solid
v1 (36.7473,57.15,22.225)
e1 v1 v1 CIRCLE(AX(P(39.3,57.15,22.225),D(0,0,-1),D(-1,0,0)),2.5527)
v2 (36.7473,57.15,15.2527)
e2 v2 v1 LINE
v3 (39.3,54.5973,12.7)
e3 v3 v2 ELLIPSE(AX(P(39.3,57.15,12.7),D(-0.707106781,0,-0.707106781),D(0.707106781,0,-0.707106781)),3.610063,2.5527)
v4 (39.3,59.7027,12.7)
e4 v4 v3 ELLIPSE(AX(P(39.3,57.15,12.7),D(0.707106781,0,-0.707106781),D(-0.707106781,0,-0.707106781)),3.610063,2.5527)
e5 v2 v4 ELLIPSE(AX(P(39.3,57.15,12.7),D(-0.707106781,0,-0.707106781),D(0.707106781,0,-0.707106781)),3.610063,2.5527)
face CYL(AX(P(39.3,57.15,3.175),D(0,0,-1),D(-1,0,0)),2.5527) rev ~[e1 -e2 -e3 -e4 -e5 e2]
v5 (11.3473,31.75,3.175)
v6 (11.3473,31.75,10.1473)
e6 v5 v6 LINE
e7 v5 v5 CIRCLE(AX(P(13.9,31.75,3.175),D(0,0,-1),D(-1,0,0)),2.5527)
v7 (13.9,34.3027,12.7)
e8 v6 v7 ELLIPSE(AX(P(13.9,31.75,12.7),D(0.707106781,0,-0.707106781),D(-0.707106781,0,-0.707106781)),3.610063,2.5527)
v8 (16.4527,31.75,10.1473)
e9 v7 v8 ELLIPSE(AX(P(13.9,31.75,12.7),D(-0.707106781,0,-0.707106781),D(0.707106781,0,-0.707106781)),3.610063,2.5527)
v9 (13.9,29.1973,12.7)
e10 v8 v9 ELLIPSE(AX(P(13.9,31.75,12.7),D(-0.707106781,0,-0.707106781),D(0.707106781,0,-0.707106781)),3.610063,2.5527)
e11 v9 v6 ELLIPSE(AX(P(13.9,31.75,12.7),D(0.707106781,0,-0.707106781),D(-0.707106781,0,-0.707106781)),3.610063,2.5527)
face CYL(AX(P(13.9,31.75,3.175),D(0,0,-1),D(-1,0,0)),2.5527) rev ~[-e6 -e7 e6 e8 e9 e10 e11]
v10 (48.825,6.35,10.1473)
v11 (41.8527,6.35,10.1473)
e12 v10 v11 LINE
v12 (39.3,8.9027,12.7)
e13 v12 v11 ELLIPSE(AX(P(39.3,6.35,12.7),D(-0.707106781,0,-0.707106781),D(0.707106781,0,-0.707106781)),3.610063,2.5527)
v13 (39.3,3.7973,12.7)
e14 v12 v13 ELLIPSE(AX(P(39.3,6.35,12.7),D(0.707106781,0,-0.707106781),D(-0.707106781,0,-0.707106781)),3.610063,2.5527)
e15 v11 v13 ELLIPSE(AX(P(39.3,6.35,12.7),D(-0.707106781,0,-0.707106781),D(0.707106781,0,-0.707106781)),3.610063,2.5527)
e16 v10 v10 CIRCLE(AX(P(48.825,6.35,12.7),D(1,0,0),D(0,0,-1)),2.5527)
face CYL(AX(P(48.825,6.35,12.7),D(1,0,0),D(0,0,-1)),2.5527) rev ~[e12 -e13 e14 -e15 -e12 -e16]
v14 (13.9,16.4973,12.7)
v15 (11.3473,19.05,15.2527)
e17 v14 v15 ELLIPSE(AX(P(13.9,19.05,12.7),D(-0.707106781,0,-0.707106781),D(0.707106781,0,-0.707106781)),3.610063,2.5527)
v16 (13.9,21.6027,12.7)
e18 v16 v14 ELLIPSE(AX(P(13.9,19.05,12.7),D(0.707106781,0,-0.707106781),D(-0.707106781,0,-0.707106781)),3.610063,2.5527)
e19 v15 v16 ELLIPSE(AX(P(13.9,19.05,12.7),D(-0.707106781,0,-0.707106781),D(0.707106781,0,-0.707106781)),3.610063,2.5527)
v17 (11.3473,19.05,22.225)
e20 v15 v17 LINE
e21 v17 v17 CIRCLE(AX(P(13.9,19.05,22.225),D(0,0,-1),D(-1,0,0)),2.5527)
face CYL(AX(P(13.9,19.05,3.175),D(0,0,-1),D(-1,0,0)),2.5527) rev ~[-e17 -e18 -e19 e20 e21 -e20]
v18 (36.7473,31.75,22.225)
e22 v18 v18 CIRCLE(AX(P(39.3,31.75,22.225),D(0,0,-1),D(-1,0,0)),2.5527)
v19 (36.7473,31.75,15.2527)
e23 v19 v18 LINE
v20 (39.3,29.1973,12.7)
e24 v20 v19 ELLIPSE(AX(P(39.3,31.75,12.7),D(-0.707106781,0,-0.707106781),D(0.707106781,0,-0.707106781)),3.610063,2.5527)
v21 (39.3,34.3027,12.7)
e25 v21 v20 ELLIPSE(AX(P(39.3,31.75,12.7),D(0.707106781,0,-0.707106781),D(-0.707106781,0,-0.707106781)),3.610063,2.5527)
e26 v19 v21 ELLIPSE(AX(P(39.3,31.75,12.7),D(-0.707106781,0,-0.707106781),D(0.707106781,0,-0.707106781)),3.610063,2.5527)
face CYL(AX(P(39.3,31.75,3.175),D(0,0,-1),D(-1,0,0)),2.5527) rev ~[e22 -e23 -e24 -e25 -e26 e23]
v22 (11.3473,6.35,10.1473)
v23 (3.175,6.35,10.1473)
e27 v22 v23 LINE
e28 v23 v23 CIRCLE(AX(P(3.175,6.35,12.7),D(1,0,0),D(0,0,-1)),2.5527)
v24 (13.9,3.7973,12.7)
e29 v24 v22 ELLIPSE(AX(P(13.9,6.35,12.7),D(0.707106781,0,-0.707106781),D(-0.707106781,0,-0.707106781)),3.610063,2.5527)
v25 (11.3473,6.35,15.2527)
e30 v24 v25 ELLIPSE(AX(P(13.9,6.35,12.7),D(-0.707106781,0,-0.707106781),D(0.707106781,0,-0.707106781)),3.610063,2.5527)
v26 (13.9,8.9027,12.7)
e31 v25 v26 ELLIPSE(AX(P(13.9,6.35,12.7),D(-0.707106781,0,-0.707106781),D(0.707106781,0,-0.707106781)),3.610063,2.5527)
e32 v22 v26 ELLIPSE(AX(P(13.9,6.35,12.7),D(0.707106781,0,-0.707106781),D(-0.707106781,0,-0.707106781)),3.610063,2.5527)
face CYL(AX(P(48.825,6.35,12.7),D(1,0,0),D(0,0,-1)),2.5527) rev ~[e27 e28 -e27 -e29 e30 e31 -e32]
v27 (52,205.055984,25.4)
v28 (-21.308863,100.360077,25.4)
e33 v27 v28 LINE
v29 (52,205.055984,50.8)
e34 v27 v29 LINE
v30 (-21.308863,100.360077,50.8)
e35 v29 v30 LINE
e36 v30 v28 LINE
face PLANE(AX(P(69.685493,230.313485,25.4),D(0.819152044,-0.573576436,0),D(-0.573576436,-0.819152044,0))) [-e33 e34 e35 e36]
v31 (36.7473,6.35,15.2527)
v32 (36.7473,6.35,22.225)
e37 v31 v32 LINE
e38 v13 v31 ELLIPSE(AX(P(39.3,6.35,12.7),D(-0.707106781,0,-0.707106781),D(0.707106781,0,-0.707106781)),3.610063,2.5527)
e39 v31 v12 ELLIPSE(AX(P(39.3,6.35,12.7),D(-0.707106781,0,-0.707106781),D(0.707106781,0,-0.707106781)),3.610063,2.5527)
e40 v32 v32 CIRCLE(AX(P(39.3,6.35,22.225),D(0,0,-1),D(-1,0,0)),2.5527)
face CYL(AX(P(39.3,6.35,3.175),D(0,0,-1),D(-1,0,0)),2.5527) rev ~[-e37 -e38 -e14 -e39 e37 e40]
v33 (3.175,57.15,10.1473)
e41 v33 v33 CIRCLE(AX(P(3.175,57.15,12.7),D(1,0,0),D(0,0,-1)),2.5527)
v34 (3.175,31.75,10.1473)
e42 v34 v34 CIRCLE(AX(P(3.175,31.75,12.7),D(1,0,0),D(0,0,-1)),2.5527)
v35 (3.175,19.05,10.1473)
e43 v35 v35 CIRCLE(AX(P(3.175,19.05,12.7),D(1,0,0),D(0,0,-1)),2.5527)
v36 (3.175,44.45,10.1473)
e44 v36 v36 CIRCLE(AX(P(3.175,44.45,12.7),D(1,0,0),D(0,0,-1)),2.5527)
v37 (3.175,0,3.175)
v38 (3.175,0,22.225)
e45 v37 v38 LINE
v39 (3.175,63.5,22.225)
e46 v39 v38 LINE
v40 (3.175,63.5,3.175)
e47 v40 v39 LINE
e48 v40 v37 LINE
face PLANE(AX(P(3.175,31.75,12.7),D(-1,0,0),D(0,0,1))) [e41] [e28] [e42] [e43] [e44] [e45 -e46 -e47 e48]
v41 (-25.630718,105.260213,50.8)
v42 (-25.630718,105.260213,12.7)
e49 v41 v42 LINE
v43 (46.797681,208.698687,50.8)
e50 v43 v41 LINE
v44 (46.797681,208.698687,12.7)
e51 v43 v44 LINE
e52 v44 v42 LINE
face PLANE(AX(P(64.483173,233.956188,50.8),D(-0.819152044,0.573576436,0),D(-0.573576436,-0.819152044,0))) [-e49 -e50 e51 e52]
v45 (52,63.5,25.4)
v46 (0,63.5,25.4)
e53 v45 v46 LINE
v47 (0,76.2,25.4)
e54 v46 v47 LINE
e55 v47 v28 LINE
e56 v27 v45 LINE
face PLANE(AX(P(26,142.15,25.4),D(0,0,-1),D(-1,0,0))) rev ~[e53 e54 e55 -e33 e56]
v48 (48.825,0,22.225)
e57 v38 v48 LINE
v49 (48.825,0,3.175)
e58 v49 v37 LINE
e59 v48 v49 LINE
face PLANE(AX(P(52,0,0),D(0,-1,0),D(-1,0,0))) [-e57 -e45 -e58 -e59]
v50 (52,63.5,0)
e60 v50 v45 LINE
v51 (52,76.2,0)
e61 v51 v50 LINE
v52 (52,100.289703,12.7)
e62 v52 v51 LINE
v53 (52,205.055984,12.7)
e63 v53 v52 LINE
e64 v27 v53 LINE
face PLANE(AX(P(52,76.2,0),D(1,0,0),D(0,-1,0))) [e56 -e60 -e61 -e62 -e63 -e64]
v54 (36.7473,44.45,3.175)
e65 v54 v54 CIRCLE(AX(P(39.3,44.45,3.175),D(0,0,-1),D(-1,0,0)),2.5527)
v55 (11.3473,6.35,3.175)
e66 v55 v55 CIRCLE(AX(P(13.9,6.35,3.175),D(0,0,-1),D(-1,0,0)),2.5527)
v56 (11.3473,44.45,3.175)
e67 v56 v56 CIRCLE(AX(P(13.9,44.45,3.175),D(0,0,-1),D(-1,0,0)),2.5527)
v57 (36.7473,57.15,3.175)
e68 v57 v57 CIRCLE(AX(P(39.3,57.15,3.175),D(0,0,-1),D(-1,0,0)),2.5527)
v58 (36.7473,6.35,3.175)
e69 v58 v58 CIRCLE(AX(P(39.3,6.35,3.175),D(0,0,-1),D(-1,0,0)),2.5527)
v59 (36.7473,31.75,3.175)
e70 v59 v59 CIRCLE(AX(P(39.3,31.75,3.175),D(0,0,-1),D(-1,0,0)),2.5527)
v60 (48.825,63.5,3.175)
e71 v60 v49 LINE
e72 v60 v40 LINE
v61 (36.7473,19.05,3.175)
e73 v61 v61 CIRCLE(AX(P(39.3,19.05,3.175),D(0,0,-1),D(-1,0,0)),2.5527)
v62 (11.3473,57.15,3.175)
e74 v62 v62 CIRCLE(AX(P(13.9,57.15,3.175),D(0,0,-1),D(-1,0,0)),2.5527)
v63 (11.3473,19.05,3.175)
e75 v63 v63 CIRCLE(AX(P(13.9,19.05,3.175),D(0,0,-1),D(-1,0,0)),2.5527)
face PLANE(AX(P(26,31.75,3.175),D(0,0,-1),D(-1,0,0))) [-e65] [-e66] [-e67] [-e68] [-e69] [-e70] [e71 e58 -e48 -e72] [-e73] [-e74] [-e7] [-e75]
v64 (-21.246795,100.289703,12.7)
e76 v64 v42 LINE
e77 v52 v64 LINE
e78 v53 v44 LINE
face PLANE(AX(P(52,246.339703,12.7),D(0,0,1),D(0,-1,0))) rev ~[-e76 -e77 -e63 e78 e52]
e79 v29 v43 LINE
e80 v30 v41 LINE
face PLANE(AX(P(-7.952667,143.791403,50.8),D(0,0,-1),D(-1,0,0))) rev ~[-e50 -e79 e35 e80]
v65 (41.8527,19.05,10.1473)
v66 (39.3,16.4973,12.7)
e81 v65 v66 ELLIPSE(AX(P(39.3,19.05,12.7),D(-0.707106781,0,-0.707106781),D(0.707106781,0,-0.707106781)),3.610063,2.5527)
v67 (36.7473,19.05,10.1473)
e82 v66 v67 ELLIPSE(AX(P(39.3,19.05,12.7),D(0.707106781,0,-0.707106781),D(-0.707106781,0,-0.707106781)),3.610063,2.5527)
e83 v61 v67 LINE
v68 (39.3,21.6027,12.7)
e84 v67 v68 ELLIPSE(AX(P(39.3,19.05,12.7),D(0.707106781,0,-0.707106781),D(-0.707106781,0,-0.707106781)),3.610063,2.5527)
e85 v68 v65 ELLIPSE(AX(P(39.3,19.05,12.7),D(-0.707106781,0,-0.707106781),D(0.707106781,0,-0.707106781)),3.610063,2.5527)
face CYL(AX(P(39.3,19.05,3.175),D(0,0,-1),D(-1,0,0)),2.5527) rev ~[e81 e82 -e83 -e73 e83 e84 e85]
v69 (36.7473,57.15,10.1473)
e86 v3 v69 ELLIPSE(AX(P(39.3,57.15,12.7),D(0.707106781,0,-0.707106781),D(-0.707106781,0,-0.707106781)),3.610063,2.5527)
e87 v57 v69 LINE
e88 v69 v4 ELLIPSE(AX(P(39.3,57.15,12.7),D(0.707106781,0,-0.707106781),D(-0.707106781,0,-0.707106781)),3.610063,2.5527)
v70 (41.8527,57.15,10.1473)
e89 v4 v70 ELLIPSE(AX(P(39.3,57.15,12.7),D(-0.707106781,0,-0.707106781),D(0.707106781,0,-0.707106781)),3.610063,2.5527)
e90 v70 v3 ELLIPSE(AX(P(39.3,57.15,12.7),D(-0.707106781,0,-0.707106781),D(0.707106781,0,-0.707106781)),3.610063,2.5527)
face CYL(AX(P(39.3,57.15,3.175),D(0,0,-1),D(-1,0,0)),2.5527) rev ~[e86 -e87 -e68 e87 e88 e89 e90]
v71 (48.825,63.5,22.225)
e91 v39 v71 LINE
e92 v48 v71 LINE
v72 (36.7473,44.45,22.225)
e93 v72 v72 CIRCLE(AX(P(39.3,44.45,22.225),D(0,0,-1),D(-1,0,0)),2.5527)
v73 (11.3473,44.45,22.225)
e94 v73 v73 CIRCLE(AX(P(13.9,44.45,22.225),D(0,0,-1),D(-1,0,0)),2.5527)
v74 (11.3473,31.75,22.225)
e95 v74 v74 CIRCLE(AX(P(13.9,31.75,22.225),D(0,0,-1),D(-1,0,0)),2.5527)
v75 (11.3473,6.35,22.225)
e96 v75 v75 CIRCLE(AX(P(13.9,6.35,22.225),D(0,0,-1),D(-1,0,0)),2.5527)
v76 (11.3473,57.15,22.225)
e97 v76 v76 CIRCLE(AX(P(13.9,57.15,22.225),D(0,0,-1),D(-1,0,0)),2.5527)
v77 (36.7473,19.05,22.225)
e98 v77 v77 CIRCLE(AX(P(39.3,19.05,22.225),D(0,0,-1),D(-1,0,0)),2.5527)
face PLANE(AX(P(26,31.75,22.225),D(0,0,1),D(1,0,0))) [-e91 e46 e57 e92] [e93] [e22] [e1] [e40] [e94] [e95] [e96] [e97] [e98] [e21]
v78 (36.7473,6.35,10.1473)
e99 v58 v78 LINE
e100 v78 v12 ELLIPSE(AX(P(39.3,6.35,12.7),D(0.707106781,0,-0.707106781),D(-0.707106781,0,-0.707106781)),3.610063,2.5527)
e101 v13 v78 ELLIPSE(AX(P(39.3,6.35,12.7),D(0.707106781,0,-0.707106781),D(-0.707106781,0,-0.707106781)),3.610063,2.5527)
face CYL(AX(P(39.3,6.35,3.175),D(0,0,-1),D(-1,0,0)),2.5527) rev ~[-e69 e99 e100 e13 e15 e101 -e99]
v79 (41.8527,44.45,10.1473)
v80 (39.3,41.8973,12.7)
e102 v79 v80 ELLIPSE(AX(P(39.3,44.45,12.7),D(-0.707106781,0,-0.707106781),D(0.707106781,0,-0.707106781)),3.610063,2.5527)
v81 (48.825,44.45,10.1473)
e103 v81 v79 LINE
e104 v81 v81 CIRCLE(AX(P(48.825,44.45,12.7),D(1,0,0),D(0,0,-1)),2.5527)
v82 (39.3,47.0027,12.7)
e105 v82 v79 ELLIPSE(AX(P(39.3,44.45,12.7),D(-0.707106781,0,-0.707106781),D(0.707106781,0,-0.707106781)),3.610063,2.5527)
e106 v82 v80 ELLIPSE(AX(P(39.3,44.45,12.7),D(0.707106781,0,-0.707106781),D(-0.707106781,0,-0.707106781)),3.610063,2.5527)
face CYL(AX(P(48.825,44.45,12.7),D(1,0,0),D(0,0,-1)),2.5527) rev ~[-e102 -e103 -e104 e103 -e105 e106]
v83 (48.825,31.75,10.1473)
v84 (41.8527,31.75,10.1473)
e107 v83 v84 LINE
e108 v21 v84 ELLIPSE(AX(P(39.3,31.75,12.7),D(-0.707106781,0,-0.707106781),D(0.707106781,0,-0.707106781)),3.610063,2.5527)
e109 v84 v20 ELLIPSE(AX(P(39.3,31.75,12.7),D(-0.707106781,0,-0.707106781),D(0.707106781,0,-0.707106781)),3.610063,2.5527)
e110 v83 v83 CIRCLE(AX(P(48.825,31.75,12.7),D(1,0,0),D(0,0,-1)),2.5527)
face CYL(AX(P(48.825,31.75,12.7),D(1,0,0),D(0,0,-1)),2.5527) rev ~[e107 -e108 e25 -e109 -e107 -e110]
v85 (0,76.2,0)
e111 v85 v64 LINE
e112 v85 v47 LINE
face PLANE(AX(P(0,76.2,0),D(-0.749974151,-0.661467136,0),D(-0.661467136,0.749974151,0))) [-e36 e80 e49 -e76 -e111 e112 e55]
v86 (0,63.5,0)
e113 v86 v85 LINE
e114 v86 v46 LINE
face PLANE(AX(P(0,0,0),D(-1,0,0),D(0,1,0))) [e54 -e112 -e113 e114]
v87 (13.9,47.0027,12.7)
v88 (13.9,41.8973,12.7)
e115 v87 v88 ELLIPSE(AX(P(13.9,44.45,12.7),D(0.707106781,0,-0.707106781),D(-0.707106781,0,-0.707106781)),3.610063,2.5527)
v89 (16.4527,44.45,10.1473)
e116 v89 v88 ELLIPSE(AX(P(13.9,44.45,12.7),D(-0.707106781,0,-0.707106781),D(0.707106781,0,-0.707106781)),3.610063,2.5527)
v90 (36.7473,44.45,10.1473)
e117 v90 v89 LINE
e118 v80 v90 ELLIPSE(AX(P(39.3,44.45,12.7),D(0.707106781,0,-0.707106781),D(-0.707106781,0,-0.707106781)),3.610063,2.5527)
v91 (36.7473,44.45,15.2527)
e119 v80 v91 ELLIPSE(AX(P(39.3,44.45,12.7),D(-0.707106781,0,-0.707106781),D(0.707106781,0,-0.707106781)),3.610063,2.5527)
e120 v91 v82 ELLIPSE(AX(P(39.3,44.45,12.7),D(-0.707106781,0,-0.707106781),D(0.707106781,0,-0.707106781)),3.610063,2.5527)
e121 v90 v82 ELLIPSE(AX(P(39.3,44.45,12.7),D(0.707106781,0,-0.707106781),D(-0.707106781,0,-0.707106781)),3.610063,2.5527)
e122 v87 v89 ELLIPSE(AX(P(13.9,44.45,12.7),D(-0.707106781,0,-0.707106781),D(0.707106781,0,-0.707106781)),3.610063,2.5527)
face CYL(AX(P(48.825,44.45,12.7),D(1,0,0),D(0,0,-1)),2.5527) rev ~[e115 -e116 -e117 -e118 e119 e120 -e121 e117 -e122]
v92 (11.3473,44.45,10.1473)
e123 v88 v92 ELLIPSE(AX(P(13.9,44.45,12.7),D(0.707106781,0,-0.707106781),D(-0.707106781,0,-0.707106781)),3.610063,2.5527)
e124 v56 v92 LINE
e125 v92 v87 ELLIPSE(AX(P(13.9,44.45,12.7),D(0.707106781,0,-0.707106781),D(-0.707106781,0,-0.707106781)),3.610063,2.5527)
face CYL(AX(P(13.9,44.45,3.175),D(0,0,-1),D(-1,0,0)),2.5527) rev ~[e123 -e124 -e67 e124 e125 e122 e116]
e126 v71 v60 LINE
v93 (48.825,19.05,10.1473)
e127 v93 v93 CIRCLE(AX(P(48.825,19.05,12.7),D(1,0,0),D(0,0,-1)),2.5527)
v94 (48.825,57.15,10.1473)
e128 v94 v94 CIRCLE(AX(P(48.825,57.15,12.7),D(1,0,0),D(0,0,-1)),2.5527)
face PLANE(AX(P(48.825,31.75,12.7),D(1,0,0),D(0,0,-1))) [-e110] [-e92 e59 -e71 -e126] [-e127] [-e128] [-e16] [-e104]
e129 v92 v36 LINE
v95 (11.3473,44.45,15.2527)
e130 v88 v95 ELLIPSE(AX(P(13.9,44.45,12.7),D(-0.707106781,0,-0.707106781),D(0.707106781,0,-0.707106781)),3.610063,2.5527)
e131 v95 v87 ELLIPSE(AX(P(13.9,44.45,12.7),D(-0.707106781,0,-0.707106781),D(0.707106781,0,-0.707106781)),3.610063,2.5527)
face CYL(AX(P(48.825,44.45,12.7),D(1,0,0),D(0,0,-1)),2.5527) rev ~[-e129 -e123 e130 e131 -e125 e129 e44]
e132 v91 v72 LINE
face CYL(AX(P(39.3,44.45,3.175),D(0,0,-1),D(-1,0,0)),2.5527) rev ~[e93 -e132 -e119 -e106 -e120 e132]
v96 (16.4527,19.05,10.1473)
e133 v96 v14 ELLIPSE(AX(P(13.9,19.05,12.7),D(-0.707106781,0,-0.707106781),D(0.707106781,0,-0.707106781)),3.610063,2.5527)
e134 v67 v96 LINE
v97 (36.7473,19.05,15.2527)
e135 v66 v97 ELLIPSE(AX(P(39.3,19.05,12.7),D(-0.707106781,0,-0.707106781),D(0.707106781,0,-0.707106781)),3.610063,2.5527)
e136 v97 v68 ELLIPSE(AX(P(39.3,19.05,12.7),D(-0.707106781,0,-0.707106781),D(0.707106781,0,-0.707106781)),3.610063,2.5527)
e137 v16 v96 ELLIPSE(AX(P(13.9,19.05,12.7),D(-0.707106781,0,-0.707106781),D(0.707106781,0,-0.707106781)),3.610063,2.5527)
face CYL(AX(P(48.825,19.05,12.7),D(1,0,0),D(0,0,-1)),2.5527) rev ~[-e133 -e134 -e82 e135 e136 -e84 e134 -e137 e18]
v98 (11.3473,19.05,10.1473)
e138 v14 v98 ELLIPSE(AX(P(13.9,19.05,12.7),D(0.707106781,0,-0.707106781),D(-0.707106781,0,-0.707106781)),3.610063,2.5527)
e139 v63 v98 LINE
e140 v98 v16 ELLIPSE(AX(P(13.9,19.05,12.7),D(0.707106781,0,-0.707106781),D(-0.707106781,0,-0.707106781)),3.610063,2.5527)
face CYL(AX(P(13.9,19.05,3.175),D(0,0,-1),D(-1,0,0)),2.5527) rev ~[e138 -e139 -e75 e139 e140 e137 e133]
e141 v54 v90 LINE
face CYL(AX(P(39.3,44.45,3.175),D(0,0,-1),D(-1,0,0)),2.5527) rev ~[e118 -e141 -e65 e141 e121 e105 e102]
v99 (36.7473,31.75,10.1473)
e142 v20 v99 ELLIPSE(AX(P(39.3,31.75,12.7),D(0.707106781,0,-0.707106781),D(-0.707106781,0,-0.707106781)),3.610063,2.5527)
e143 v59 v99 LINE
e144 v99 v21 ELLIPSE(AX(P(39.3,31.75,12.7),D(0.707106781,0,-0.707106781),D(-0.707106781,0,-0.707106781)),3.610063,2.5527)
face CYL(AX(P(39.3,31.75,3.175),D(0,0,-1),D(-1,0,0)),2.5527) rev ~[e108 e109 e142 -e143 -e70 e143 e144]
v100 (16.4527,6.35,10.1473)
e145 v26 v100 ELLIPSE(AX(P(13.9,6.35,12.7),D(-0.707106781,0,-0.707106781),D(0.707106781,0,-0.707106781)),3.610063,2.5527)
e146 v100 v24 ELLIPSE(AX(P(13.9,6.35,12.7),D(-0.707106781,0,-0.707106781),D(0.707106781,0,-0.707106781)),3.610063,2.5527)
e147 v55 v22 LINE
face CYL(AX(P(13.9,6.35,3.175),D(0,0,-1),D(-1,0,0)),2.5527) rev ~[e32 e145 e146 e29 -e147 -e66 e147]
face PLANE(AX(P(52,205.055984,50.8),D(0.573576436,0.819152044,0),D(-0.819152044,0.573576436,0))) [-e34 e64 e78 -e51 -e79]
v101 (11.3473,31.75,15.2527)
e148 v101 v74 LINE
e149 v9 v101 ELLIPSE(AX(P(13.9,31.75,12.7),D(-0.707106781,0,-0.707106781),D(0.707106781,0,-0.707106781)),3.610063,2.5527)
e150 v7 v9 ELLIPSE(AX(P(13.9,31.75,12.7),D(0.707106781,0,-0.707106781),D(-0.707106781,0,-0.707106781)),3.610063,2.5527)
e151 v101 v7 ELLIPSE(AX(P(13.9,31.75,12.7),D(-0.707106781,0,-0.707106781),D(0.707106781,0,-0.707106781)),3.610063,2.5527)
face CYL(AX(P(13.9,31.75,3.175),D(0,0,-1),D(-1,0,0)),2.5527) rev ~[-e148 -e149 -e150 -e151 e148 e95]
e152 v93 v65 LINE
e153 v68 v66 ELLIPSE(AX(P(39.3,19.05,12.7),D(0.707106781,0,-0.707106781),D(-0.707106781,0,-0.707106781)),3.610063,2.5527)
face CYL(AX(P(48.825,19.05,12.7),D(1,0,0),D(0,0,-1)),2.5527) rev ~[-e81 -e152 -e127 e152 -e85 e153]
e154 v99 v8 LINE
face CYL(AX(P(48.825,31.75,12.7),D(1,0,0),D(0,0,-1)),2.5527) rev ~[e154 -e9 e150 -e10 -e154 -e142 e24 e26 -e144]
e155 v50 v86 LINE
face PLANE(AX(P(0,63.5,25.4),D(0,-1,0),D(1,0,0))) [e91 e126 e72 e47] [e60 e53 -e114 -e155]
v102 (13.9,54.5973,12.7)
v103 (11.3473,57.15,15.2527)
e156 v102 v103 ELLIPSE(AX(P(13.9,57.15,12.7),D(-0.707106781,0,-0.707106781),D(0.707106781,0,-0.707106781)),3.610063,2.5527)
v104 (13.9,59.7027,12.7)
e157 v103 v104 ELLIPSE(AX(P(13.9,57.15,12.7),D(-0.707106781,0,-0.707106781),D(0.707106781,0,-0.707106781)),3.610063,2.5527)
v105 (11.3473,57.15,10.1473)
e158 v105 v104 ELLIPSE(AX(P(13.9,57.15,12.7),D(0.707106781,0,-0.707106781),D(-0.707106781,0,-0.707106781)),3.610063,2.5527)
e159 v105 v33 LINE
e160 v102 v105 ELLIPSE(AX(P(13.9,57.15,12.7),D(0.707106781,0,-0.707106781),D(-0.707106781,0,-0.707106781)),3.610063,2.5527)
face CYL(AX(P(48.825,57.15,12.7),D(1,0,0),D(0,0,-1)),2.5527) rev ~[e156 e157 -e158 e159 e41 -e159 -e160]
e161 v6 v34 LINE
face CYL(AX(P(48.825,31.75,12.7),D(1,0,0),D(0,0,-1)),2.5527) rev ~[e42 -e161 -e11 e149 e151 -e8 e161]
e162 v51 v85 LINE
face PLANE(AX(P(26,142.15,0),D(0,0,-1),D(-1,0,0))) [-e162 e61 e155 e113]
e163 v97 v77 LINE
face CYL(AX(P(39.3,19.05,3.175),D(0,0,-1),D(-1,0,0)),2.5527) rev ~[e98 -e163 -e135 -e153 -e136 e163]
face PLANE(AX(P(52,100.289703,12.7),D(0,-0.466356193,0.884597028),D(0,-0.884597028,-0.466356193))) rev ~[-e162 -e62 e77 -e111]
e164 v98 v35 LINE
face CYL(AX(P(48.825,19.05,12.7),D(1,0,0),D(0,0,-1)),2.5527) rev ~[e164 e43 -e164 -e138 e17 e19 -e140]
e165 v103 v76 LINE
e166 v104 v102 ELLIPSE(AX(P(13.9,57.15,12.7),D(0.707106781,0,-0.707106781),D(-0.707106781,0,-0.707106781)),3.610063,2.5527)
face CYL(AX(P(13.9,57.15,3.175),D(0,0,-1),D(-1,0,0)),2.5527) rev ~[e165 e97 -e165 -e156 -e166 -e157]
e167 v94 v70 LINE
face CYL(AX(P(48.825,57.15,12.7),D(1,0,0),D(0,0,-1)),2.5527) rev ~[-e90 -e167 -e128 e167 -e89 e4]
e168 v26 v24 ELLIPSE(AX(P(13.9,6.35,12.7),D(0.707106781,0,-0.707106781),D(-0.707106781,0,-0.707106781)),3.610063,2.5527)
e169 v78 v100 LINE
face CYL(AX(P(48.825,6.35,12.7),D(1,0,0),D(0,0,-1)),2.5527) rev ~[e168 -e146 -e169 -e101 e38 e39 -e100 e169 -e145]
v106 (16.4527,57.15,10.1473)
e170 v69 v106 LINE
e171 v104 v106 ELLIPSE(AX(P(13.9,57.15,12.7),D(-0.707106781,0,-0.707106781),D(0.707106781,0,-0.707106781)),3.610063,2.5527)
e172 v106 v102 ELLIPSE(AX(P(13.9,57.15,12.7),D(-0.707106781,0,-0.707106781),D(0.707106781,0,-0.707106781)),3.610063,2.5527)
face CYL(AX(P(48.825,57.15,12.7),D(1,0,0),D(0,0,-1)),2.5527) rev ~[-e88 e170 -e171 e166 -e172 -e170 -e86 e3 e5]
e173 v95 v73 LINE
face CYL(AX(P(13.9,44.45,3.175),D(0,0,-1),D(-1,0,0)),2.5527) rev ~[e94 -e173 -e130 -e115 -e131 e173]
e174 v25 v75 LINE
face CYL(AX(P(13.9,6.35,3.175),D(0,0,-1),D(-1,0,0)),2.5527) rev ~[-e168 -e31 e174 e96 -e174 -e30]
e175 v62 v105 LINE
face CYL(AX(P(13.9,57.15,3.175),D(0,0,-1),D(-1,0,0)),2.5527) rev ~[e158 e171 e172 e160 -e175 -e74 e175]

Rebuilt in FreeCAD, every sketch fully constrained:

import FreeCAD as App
import Part
import Sketcher
from FreeCAD import Vector
Q = App.Units.Quantity


def add_polygon(sketch, points):
    """Adds a closed chain of lines whose ends are joined by coincident constraints."""
    first, n = sketch.GeometryCount, len(points)
    for a, b in zip(points, points[1:] + points[:1]):
        sketch.addGeometry(Part.LineSegment(App.Vector(*a, 0), App.Vector(*b, 0)), False)
    for i in range(n):
        sketch.addConstraint(Sketcher.Constraint("Coincident", first + i, 2, first + (i + 1) % n, 1))

doc = App.newDocument("Part")
body = doc.addObject("PartDesign::Body", "Body")

sketch1 = body.newObject("Sketcher::SketchObject", "Sketch")
sketch1.AttachmentSupport = (doc.getObject("XY_Plane"), [""])
sketch1.MapMode = "FlatFace"
add_polygon(sketch1, [(0, 76), (0, 0), (52, 0), (52, 76), (153, 76), (153, 254), (-101, 254), (-101, 76)])
sketch1.addConstraint(Sketcher.Constraint("Vertical", 0))
sketch1.addConstraint(Sketcher.Constraint("Horizontal", 1))
sketch1.addConstraint(Sketcher.Constraint("Vertical", 2))
sketch1.addConstraint(Sketcher.Constraint("Horizontal", 3))
sketch1.addConstraint(Sketcher.Constraint("Vertical", 4))
sketch1.addConstraint(Sketcher.Constraint("Horizontal", 5))
sketch1.addConstraint(Sketcher.Constraint("Vertical", 6))
sketch1.addConstraint(Sketcher.Constraint("Horizontal", 7))
sketch1.addConstraint(Sketcher.Constraint("Coincident", 0, 2, -1, 1))
sketch1.addConstraint(Sketcher.Constraint("Horizontal", 3, 2, 6, 2))
sketch1.addConstraint(Sketcher.Constraint("Equal", 3, 7))
sketch1.addConstraint(Sketcher.Constraint("DistanceX", 5, 2, 5, 1, Q("10 in")))
sketch1.addConstraint(Sketcher.Constraint("DistanceY", 0, 2, 0, 1, Q("3 in")))
sketch1.addConstraint(Sketcher.Constraint("DistanceY", 4, 1, 4, 2, Q("7 in")))
sketch1.addConstraint(Sketcher.Constraint("DistanceX", 1, 1, 1, 2, 52.0))
pad1 = body.newObject("PartDesign::Pad", "Pad")
pad1.Profile = sketch1
pad1.Length = Q("1 in")

sketch2 = body.newObject("Sketcher::SketchObject", "Sketch001")
sketch2.AttachmentSupport = (doc.getObject("XY_Plane"), [""])
sketch2.MapMode = "FlatFace"
sketch2.AttachmentOffset = App.Placement(Vector(0, 0, 1 * 25.4), App.Rotation())
add_polygon(sketch2, [(0, 64), (0, 0), (52, 0), (52, 64)])
sketch2.addConstraint(Sketcher.Constraint("Vertical", 0))
sketch2.addConstraint(Sketcher.Constraint("Horizontal", 1))
sketch2.addConstraint(Sketcher.Constraint("Vertical", 2))
sketch2.addConstraint(Sketcher.Constraint("Horizontal", 3))
sketch2.addConstraint(Sketcher.Constraint("Coincident", 0, 2, -1, 1))
sketch2.addConstraint(Sketcher.Constraint("DistanceY", 0, 2, 0, 1, Q("2.5 in")))
sketch2.addConstraint(Sketcher.Constraint("DistanceX", 1, 1, 1, 2, 52.0))
pocket1 = body.newObject("PartDesign::Pocket", "Pocket")
pocket1.Profile = sketch2
pocket1.Length = Q("0.125 in")

sketch3 = body.newObject("Sketcher::SketchObject", "Sketch002")
sketch3.AttachmentSupport = (doc.getObject("YZ_Plane"), [""])
sketch3.MapMode = "FlatFace"
add_polygon(sketch3, [(64, 0), (0, 0), (0, 25), (64, 25)])
sketch3.addConstraint(Sketcher.Constraint("Horizontal", 0))
sketch3.addConstraint(Sketcher.Constraint("Vertical", 1))
sketch3.addConstraint(Sketcher.Constraint("Horizontal", 2))
sketch3.addConstraint(Sketcher.Constraint("Vertical", 3))
sketch3.addConstraint(Sketcher.Constraint("Coincident", 0, 2, -1, 1))
sketch3.addConstraint(Sketcher.Constraint("DistanceY", 1, 1, 1, 2, Q("1 in")))
sketch3.addConstraint(Sketcher.Constraint("DistanceX", 0, 2, 0, 1, Q("2.5 in")))
pocket2 = body.newObject("PartDesign::Pocket", "Pocket001")
pocket2.Profile = sketch3
pocket2.Length = Q("0.125 in")
pocket2.Reversed = True

sketch4 = body.newObject("Sketcher::SketchObject", "Sketch003")
sketch4.AttachmentSupport = (doc.getObject("XY_Plane"), [""])
sketch4.MapMode = "FlatFace"
add_polygon(sketch4, [(52, 64), (52, 0), (0, 0), (0, 64)])
sketch4.addConstraint(Sketcher.Constraint("Vertical", 0))
sketch4.addConstraint(Sketcher.Constraint("Horizontal", 1))
sketch4.addConstraint(Sketcher.Constraint("Vertical", 2))
sketch4.addConstraint(Sketcher.Constraint("Horizontal", 3))
sketch4.addConstraint(Sketcher.Constraint("Coincident", 1, 2, -1, 1))
sketch4.addConstraint(Sketcher.Constraint("DistanceY", 0, 2, 0, 1, Q("2.5 in")))
sketch4.addConstraint(Sketcher.Constraint("DistanceX", 1, 2, 1, 1, 52.0))
pocket3 = body.newObject("PartDesign::Pocket", "Pocket002")
pocket3.Profile = sketch4
pocket3.Length = Q("0.125 in")
pocket3.Reversed = True

sketch5 = body.newObject("Sketcher::SketchObject", "Sketch004")
sketch5.AttachmentSupport = (doc.getObject("YZ_Plane"), [""])
sketch5.MapMode = "FlatFace"
sketch5.AttachmentOffset = App.Placement(Vector(0, 0, 52), App.Rotation())
add_polygon(sketch5, [(64, 25), (0, 25), (0, 0), (64, 0)])
sketch5.addConstraint(Sketcher.Constraint("Horizontal", 0))
sketch5.addConstraint(Sketcher.Constraint("Vertical", 1))
sketch5.addConstraint(Sketcher.Constraint("Horizontal", 2))
sketch5.addConstraint(Sketcher.Constraint("Vertical", 3))
sketch5.addConstraint(Sketcher.Constraint("Coincident", 1, 2, -1, 1))
sketch5.addConstraint(Sketcher.Constraint("DistanceY", 1, 2, 1, 1, Q("1 in")))
sketch5.addConstraint(Sketcher.Constraint("DistanceX", 0, 2, 0, 1, Q("2.5 in")))
pocket4 = body.newObject("PartDesign::Pocket", "Pocket003")
pocket4.Profile = sketch5
pocket4.Length = Q("0.125 in")

sketch6 = body.newObject("Sketcher::SketchObject", "Sketch005")
sketch6.AttachmentSupport = (doc.getObject("XY_Plane"), [""])
sketch6.MapMode = "FlatFace"
sketch6.AttachmentOffset = App.Placement(Vector(0, 0, 0.125 * 25.4), App.Rotation())
sketch6.addGeometry(Part.Circle(Vector(39.3, 57.1, 0), Vector(0, 0, 1), 2.6), False)
sketch6.addGeometry(Part.Circle(Vector(13.9, 57.1, 0), Vector(0, 0, 1), 2.6), False)
sketch6.addGeometry(Part.Circle(Vector(39.3, 44.5, 0), Vector(0, 0, 1), 2.6), False)
sketch6.addGeometry(Part.Circle(Vector(13.9, 44.5, 0), Vector(0, 0, 1), 2.6), False)
sketch6.addGeometry(Part.Circle(Vector(39.3, 31.8, 0), Vector(0, 0, 1), 2.6), False)
sketch6.addGeometry(Part.Circle(Vector(13.9, 31.8, 0), Vector(0, 0, 1), 2.6), False)
sketch6.addGeometry(Part.Circle(Vector(39.3, 19.1, 0), Vector(0, 0, 1), 2.6), False)
sketch6.addGeometry(Part.Circle(Vector(13.9, 19.1, 0), Vector(0, 0, 1), 2.6), False)
sketch6.addGeometry(Part.Circle(Vector(39.3, 6.3, 0), Vector(0, 0, 1), 2.6), False)
sketch6.addGeometry(Part.Circle(Vector(13.9, 6.3, 0), Vector(0, 0, 1), 2.6), False)
sketch6.addConstraint(Sketcher.Constraint("Equal", 0, 1))
sketch6.addConstraint(Sketcher.Constraint("Equal", 1, 2))
sketch6.addConstraint(Sketcher.Constraint("Equal", 2, 3))
sketch6.addConstraint(Sketcher.Constraint("Equal", 3, 4))
sketch6.addConstraint(Sketcher.Constraint("Equal", 4, 5))
sketch6.addConstraint(Sketcher.Constraint("Equal", 5, 6))
sketch6.addConstraint(Sketcher.Constraint("Equal", 6, 7))
sketch6.addConstraint(Sketcher.Constraint("Equal", 7, 8))
sketch6.addConstraint(Sketcher.Constraint("Equal", 8, 9))
sketch6.addConstraint(Sketcher.Constraint("Horizontal", 0, 3, 1, 3))
sketch6.addConstraint(Sketcher.Constraint("Horizontal", 2, 3, 3, 3))
sketch6.addConstraint(Sketcher.Constraint("Horizontal", 4, 3, 5, 3))
sketch6.addConstraint(Sketcher.Constraint("Horizontal", 6, 3, 7, 3))
sketch6.addConstraint(Sketcher.Constraint("Horizontal", 8, 3, 9, 3))
sketch6.addConstraint(Sketcher.Constraint("Vertical", 0, 3, 2, 3))
sketch6.addConstraint(Sketcher.Constraint("Vertical", 1, 3, 3, 3))
sketch6.addConstraint(Sketcher.Constraint("Vertical", 2, 3, 4, 3))
sketch6.addConstraint(Sketcher.Constraint("Vertical", 3, 3, 5, 3))
sketch6.addConstraint(Sketcher.Constraint("Vertical", 4, 3, 6, 3))
sketch6.addConstraint(Sketcher.Constraint("Vertical", 5, 3, 7, 3))
sketch6.addConstraint(Sketcher.Constraint("Vertical", 6, 3, 8, 3))
sketch6.addConstraint(Sketcher.Constraint("Vertical", 7, 3, 9, 3))
sketch6.addConstraint(Sketcher.Constraint("Diameter", 0, Q("0.201 in")))
sketch6.addConstraint(Sketcher.Constraint("DistanceX", 1, 3, 0, 3, Q("1 in")))
sketch6.addConstraint(Sketcher.Constraint("DistanceY", 4, 3, 0, 3, Q("1 in")))
sketch6.addConstraint(Sketcher.Constraint("DistanceY", 6, 3, 2, 3, Q("1 in")))
sketch6.addConstraint(Sketcher.Constraint("DistanceY", 8, 3, 4, 3, Q("1 in")))
sketch6.addConstraint(Sketcher.Constraint("DistanceY", 2, 3, 0, 3, Q("0.5 in")))
sketch6.addConstraint(Sketcher.Constraint("DistanceY", -1, 1, 0, 3, Q("2.25 in")))
sketch6.addConstraint(Sketcher.Constraint("DistanceX", -1, 1, 0, 3, 39.3))
pocket5 = body.newObject("PartDesign::Pocket", "Pocket004")
pocket5.Profile = sketch6
pocket5.Type = "ThroughAll"
pocket5.Reversed = True

sketch7 = body.newObject("Sketcher::SketchObject", "Sketch006")
sketch7.AttachmentSupport = (doc.getObject("YZ_Plane"), [""])
sketch7.MapMode = "FlatFace"
sketch7.AttachmentOffset = App.Placement(Vector(0, 0, 48.825), App.Rotation())
sketch7.addGeometry(Part.Circle(Vector(57.1, 12.7, 0), Vector(0, 0, 1), 2.6), False)
sketch7.addGeometry(Part.Circle(Vector(44.5, 12.7, 0), Vector(0, 0, 1), 2.6), False)
sketch7.addGeometry(Part.Circle(Vector(31.8, 12.7, 0), Vector(0, 0, 1), 2.6), False)
sketch7.addGeometry(Part.Circle(Vector(19.1, 12.7, 0), Vector(0, 0, 1), 2.6), False)
sketch7.addGeometry(Part.Circle(Vector(6.3, 12.7, 0), Vector(0, 0, 1), 2.6), False)
sketch7.addConstraint(Sketcher.Constraint("Equal", 0, 1))
sketch7.addConstraint(Sketcher.Constraint("Equal", 1, 2))
sketch7.addConstraint(Sketcher.Constraint("Equal", 2, 3))
sketch7.addConstraint(Sketcher.Constraint("Equal", 3, 4))
sketch7.addConstraint(Sketcher.Constraint("Horizontal", 0, 3, 1, 3))
sketch7.addConstraint(Sketcher.Constraint("Horizontal", 1, 3, 2, 3))
sketch7.addConstraint(Sketcher.Constraint("Horizontal", 2, 3, 3, 3))
sketch7.addConstraint(Sketcher.Constraint("Horizontal", 3, 3, 4, 3))
sketch7.addConstraint(Sketcher.Constraint("Diameter", 0, Q("0.201 in")))
sketch7.addConstraint(Sketcher.Constraint("DistanceX", 2, 3, 0, 3, Q("1 in")))
sketch7.addConstraint(Sketcher.Constraint("DistanceX", 3, 3, 1, 3, Q("1 in")))
sketch7.addConstraint(Sketcher.Constraint("DistanceX", 4, 3, 2, 3, Q("1 in")))
sketch7.addConstraint(Sketcher.Constraint("DistanceY", -1, 1, 0, 3, Q("0.5 in")))
sketch7.addConstraint(Sketcher.Constraint("DistanceX", 1, 3, 0, 3, Q("0.5 in")))
sketch7.addConstraint(Sketcher.Constraint("DistanceX", -1, 1, 0, 3, Q("2.25 in")))
pocket6 = body.newObject("PartDesign::Pocket", "Pocket005")
pocket6.Profile = sketch7
pocket6.Type = "ThroughAll"

sketch8 = body.newObject("Sketcher::SketchObject", "Sketch007")
sketch8.AttachmentSupport = (doc.getObject("XY_Plane"), [""])
sketch8.MapMode = "FlatFace"
sketch8.AttachmentOffset = App.Placement(Vector(0, 0, 1 * 25.4), App.Rotation())
add_polygon(sketch8, [(52, 254), (52, 76), (153, 76), (153, 254)])
sketch8.addConstraint(Sketcher.Constraint("Vertical", 0))
sketch8.addConstraint(Sketcher.Constraint("Horizontal", 1))
sketch8.addConstraint(Sketcher.Constraint("Vertical", 2))
sketch8.addConstraint(Sketcher.Constraint("Horizontal", 3))
sketch8.addConstraint(Sketcher.Constraint("DistanceY", 0, 2, 0, 1, Q("7 in")))
sketch8.addConstraint(Sketcher.Constraint("DistanceY", -1, 1, 0, 2, Q("3 in")))
sketch8.addConstraint(Sketcher.Constraint("DistanceX", 1, 1, 1, 2, 101.0))
sketch8.addConstraint(Sketcher.Constraint("DistanceX", -1, 1, 0, 2, 52.0))
pocket7 = body.newObject("PartDesign::Pocket", "Pocket006")
pocket7.Profile = sketch8
pocket7.Type = "ThroughAll"

sketch9 = body.newObject("Sketcher::SketchObject", "Sketch008")
sketch9.AttachmentSupport = (doc.getObject("XY_Plane"), [""])
sketch9.MapMode = "FlatFace"
sketch9.AttachmentOffset = App.Placement(Vector(0, 0, 1 * 25.4), App.Rotation())
add_polygon(sketch9, [(52, 243), (52, 254), (36, 254)])
sketch9.addConstraint(Sketcher.Constraint("Vertical", 0))
sketch9.addConstraint(Sketcher.Constraint("Horizontal", 1))
sketch9.addConstraint(Sketcher.Constraint("DistanceY", -1, 1, 0, 2, Q("10 in")))
sketch9.addConstraint(Sketcher.Constraint("Angle", 2, Q("-35 deg")))
sketch9.addConstraint(Sketcher.Constraint("DistanceY", 0, 1, 0, 2, Q("0.445 in")))
sketch9.addConstraint(Sketcher.Constraint("DistanceX", -1, 1, 0, 2, 52.0))
pocket8 = body.newObject("PartDesign::Pocket", "Pocket007")
pocket8.Profile = sketch9
pocket8.Type = "ThroughAll"
pocket8.Midplane = True

sketch10 = body.newObject("Sketcher::SketchObject", "Sketch009")
sketch10.AttachmentSupport = (doc.getObject("XY_Plane"), [""])
sketch10.MapMode = "FlatFace"
sketch10.AttachmentOffset = App.Placement(Vector(0, 0, 1 * 25.4), App.Rotation())
add_polygon(sketch10, [(-101, 59), (36, 254), (-101, 254)])
sketch10.addConstraint(Sketcher.Constraint("Horizontal", 1))
sketch10.addConstraint(Sketcher.Constraint("Vertical", 2))
sketch10.addConstraint(Sketcher.Constraint("DistanceY", -1, 1, 0, 2, Q("10 in")))
sketch10.addConstraint(Sketcher.Constraint("Angle", 0, Q("55 deg")))
sketch10.addConstraint(Sketcher.Constraint("DistanceY", 2, 2, 2, 1, 195.45297))
sketch10.addConstraint(Sketcher.Constraint("DistanceX", 1, 2, -1, 1, 101.0))
pocket9 = body.newObject("PartDesign::Pocket", "Pocket008")
pocket9.Profile = sketch10
pocket9.Type = "ThroughAll"

sketch11 = body.newObject("Sketcher::SketchObject", "Sketch010")
sketch11.AttachmentSupport = (doc.getObject("XY_Plane"), [""])
sketch11.MapMode = "FlatFace"
sketch11.AttachmentOffset = App.Placement(Vector(0, 0, 1 * 25.4), App.Rotation())
add_polygon(sketch11, [(47, 246), (36, 254), (-94, 69), (-83, 61)])
sketch11.addConstraint(Sketcher.Constraint("Perpendicular", 0, 1))
sketch11.addConstraint(Sketcher.Constraint("Perpendicular", 1, 2))
sketch11.addConstraint(Sketcher.Constraint("Perpendicular", 2, 3))
sketch11.addConstraint(Sketcher.Constraint("DistanceY", -1, 1, 0, 2, Q("10 in")))
sketch11.addConstraint(Sketcher.Constraint("Angle", 0, Q("145 deg")))
sketch11.addConstraint(Sketcher.Constraint("Distance", 0, Q("0.5258 in")))
sketch11.addConstraint(Sketcher.Constraint("DistanceX", 1, 2, -1, 1, 93.76986))
sketch11.addConstraint(Sketcher.Constraint("DistanceY", -1, 1, 1, 2, 68.87274))
pocket10 = body.newObject("PartDesign::Pocket", "Pocket009")
pocket10.Profile = sketch11
pocket10.Type = "ThroughAll"

sketch12 = body.newObject("Sketcher::SketchObject", "Sketch011")
sketch12.AttachmentSupport = (doc.getObject("XY_Plane"), [""])
sketch12.MapMode = "FlatFace"
sketch12.AttachmentOffset = App.Placement(Vector(0, 0, 1 * 25.4), App.Rotation())
add_polygon(sketch12, [(70, 230), (47, 246), (-86, 57), (-63, 41)])
sketch12.addConstraint(Sketcher.Constraint("Perpendicular", 0, 1))
sketch12.addConstraint(Sketcher.Constraint("Perpendicular", 1, 2))
sketch12.addConstraint(Sketcher.Constraint("Perpendicular", 2, 3))
sketch12.addConstraint(Sketcher.Constraint("Angle", 0, Q("145 deg")))
sketch12.addConstraint(Sketcher.Constraint("DistanceY", 2, 2, 0, 2, 205.0966))
sketch12.addConstraint(Sketcher.Constraint("Distance", 0, 27.940859))
sketch12.addConstraint(Sketcher.Constraint("DistanceX", -1, 1, 0, 2, 46.797681))
sketch12.addConstraint(Sketcher.Constraint("DistanceY", -1, 1, 1, 2, 57.269321))
pad2 = body.newObject("PartDesign::Pad", "Pad001")
pad2.Profile = sketch12
pad2.Length = Q("1 in")

sketch13 = body.newObject("Sketcher::SketchObject", "Sketch012")
sketch13.AttachmentSupport = (doc.getObject("XY_Plane"), [""])
sketch13.MapMode = "FlatFace"
sketch13.AttachmentOffset = App.Placement(Vector(0, 0, 2 * 25.4), App.Rotation())
add_polygon(sketch13, [(-38, 76), (-72, 76), (-86, 57), (-63, 41)])
sketch13.addConstraint(Sketcher.Constraint("Horizontal", 0))
sketch13.addConstraint(Sketcher.Constraint("Perpendicular", 1, 2))
sketch13.addConstraint(Sketcher.Constraint("Perpendicular", 2, 3))
sketch13.addConstraint(Sketcher.Constraint("DistanceY", -1, 1, 0, 2, Q("3 in")))
sketch13.addConstraint(Sketcher.Constraint("Angle", 1, Q("-125 deg")))
sketch13.addConstraint(Sketcher.Constraint("DistanceX", 0, 2, 0, 1, 34.109491))
sketch13.addConstraint(Sketcher.Constraint("Distance", 1, 23.110092))
sketch13.addConstraint(Sketcher.Constraint("DistanceX", 0, 2, -1, 1, 72.335422))
pocket11 = body.newObject("PartDesign::Pocket", "Pocket010")
pocket11.Profile = sketch13
pocket11.Type = "ThroughAll"

sketch14 = body.newObject("Sketcher::SketchObject", "Sketch013")
sketch14.AttachmentSupport = (doc.getObject("XY_Plane"), [""])
sketch14.MapMode = "FlatFace"
add_polygon(sketch14, [(-40, 122), (0, 76), (-72, 76)])
sketch14.addConstraint(Sketcher.Constraint("Horizontal", 1))
sketch14.addConstraint(Sketcher.Constraint("PointOnObject", 0, 2, -2))
sketch14.addConstraint(Sketcher.Constraint("DistanceY", -1, 1, 0, 2, Q("3 in")))
sketch14.addConstraint(Sketcher.Constraint("Angle", 2, Q("55 deg")))
sketch14.addConstraint(Sketcher.Constraint("Distance", 0, Q("2.4 in")))
sketch14.addConstraint(Sketcher.Constraint("DistanceX", 1, 2, 1, 1, 72.335422))
pocket12 = body.newObject("PartDesign::Pocket", "Pocket011")
pocket12.Profile = sketch14
pocket12.Type = "ThroughAll"
pocket12.Reversed = True

sketch15 = body.newObject("Sketcher::SketchObject", "Sketch014")
sketch15.AttachmentSupport = (doc.getObject("YZ_Plane"), [""])
sketch15.MapMode = "FlatFace"
sketch15.AttachmentOffset = App.Placement(Vector(0, 0, 52), App.Rotation())
add_polygon(sketch15, [(246, 13), (100, 13), (76, 0), (246, 0)])
sketch15.addConstraint(Sketcher.Constraint("Horizontal", 0))
sketch15.addConstraint(Sketcher.Constraint("Horizontal", 2))
sketch15.addConstraint(Sketcher.Constraint("Vertical", 3))
sketch15.addConstraint(Sketcher.Constraint("PointOnObject", 1, 2, -1))
sketch15.addConstraint(Sketcher.Constraint("DistanceY", 3, 1, 3, 2, Q("0.5 in")))
sketch15.addConstraint(Sketcher.Constraint("DistanceX", -1, 1, 1, 2, Q("3 in")))
sketch15.addConstraint(Sketcher.Constraint("DistanceX", 0, 2, 0, 1, Q("5.75 in")))
sketch15.addConstraint(Sketcher.Constraint("DistanceX", 2, 1, 2, 2, 170.139703))
pocket13 = body.newObject("PartDesign::Pocket", "Pocket012")
pocket13.Profile = sketch15
pocket13.Type = "ThroughAll"

sketch16 = body.newObject("Sketcher::SketchObject", "Sketch015")
sketch16.AttachmentSupport = (doc.getObject("XY_Plane"), [""])
sketch16.MapMode = "FlatFace"
sketch16.AttachmentOffset = App.Placement(Vector(0, 0, 2 * 25.4), App.Rotation())
add_polygon(sketch16, [(-27, 103), (64, 234), (47, 246), (-45, 116)])
sketch16.addConstraint(Sketcher.Constraint("Perpendicular", 0, 1))
sketch16.addConstraint(Sketcher.Constraint("Perpendicular", 1, 2))
sketch16.addConstraint(Sketcher.Constraint("Perpendicular", 2, 3))
sketch16.addConstraint(Sketcher.Constraint("Angle", 0, Q("55 deg")))
sketch16.addConstraint(Sketcher.Constraint("Distance", 1, Q("0.85 in")))
sketch16.addConstraint(Sketcher.Constraint("DistanceY", 2, 2, 1, 2, 130.668701))
sketch16.addConstraint(Sketcher.Constraint("DistanceX", -1, 1, 1, 2, 46.797681))
sketch16.addConstraint(Sketcher.Constraint("DistanceY", -1, 1, 0, 2, 233.956188))
pocket14 = body.newObject("PartDesign::Pocket", "Pocket013")
pocket14.Profile = sketch16
pocket14.Type = "ThroughAll"

sketch17 = body.newObject("Sketcher::SketchObject", "Sketch016")
sketch17.AttachmentSupport = (doc.getObject("XY_Plane"), [""])
sketch17.MapMode = "FlatFace"
sketch17.AttachmentOffset = App.Placement(Vector(0, 0, 1 * 25.4), App.Rotation())
add_polygon(sketch17, [(52, 205), (52, 216), (64, 234), (70, 230)])
sketch17.addConstraint(Sketcher.Constraint("Vertical", 0))
sketch17.addConstraint(Sketcher.Constraint("Perpendicular", 1, 2))
sketch17.addConstraint(Sketcher.Constraint("Perpendicular", 2, 3))
sketch17.addConstraint(Sketcher.Constraint("Angle", 1, Q("55 deg")))
sketch17.addConstraint(Sketcher.Constraint("DistanceX", -1, 1, 0, 2, 52.0))
sketch17.addConstraint(Sketcher.Constraint("DistanceY", 3, 2, 2, 2, 25.257501))
sketch17.addConstraint(Sketcher.Constraint("Distance", 1, 21.763749))
sketch17.addConstraint(Sketcher.Constraint("DistanceY", -1, 1, 0, 2, 216.128369))
pocket15 = body.newObject("PartDesign::Pocket", "Pocket014")
pocket15.Profile = sketch17
pocket15.Type = "ThroughAll"
pocket15.Reversed = True

sketch18 = body.newObject("Sketcher::SketchObject", "Sketch017")
sketch18.AttachmentSupport = (doc.getObject("XY_Plane"), [""])
sketch18.MapMode = "FlatFace"
sketch18.AttachmentOffset = App.Placement(Vector(0, 0, 2 * 25.4), App.Rotation())
add_polygon(sketch18, [(47, 209), (52, 205), (52, 216)])
sketch18.addConstraint(Sketcher.Constraint("Vertical", 1))
sketch18.addConstraint(Sketcher.Constraint("Perpendicular", 0, 2))
sketch18.addConstraint(Sketcher.Constraint("Angle", 0, Q("-35 deg")))
sketch18.addConstraint(Sketcher.Constraint("DistanceX", -1, 1, 0, 2, 52.0))
sketch18.addConstraint(Sketcher.Constraint("Distance", 0, 6.350859))
sketch18.addConstraint(Sketcher.Constraint("DistanceY", -1, 1, 1, 2, 216.128369))
pocket16 = body.newObject("PartDesign::Pocket", "Pocket015")
pocket16.Profile = sketch18
pocket16.Type = "ThroughAll"

doc.recompute()
